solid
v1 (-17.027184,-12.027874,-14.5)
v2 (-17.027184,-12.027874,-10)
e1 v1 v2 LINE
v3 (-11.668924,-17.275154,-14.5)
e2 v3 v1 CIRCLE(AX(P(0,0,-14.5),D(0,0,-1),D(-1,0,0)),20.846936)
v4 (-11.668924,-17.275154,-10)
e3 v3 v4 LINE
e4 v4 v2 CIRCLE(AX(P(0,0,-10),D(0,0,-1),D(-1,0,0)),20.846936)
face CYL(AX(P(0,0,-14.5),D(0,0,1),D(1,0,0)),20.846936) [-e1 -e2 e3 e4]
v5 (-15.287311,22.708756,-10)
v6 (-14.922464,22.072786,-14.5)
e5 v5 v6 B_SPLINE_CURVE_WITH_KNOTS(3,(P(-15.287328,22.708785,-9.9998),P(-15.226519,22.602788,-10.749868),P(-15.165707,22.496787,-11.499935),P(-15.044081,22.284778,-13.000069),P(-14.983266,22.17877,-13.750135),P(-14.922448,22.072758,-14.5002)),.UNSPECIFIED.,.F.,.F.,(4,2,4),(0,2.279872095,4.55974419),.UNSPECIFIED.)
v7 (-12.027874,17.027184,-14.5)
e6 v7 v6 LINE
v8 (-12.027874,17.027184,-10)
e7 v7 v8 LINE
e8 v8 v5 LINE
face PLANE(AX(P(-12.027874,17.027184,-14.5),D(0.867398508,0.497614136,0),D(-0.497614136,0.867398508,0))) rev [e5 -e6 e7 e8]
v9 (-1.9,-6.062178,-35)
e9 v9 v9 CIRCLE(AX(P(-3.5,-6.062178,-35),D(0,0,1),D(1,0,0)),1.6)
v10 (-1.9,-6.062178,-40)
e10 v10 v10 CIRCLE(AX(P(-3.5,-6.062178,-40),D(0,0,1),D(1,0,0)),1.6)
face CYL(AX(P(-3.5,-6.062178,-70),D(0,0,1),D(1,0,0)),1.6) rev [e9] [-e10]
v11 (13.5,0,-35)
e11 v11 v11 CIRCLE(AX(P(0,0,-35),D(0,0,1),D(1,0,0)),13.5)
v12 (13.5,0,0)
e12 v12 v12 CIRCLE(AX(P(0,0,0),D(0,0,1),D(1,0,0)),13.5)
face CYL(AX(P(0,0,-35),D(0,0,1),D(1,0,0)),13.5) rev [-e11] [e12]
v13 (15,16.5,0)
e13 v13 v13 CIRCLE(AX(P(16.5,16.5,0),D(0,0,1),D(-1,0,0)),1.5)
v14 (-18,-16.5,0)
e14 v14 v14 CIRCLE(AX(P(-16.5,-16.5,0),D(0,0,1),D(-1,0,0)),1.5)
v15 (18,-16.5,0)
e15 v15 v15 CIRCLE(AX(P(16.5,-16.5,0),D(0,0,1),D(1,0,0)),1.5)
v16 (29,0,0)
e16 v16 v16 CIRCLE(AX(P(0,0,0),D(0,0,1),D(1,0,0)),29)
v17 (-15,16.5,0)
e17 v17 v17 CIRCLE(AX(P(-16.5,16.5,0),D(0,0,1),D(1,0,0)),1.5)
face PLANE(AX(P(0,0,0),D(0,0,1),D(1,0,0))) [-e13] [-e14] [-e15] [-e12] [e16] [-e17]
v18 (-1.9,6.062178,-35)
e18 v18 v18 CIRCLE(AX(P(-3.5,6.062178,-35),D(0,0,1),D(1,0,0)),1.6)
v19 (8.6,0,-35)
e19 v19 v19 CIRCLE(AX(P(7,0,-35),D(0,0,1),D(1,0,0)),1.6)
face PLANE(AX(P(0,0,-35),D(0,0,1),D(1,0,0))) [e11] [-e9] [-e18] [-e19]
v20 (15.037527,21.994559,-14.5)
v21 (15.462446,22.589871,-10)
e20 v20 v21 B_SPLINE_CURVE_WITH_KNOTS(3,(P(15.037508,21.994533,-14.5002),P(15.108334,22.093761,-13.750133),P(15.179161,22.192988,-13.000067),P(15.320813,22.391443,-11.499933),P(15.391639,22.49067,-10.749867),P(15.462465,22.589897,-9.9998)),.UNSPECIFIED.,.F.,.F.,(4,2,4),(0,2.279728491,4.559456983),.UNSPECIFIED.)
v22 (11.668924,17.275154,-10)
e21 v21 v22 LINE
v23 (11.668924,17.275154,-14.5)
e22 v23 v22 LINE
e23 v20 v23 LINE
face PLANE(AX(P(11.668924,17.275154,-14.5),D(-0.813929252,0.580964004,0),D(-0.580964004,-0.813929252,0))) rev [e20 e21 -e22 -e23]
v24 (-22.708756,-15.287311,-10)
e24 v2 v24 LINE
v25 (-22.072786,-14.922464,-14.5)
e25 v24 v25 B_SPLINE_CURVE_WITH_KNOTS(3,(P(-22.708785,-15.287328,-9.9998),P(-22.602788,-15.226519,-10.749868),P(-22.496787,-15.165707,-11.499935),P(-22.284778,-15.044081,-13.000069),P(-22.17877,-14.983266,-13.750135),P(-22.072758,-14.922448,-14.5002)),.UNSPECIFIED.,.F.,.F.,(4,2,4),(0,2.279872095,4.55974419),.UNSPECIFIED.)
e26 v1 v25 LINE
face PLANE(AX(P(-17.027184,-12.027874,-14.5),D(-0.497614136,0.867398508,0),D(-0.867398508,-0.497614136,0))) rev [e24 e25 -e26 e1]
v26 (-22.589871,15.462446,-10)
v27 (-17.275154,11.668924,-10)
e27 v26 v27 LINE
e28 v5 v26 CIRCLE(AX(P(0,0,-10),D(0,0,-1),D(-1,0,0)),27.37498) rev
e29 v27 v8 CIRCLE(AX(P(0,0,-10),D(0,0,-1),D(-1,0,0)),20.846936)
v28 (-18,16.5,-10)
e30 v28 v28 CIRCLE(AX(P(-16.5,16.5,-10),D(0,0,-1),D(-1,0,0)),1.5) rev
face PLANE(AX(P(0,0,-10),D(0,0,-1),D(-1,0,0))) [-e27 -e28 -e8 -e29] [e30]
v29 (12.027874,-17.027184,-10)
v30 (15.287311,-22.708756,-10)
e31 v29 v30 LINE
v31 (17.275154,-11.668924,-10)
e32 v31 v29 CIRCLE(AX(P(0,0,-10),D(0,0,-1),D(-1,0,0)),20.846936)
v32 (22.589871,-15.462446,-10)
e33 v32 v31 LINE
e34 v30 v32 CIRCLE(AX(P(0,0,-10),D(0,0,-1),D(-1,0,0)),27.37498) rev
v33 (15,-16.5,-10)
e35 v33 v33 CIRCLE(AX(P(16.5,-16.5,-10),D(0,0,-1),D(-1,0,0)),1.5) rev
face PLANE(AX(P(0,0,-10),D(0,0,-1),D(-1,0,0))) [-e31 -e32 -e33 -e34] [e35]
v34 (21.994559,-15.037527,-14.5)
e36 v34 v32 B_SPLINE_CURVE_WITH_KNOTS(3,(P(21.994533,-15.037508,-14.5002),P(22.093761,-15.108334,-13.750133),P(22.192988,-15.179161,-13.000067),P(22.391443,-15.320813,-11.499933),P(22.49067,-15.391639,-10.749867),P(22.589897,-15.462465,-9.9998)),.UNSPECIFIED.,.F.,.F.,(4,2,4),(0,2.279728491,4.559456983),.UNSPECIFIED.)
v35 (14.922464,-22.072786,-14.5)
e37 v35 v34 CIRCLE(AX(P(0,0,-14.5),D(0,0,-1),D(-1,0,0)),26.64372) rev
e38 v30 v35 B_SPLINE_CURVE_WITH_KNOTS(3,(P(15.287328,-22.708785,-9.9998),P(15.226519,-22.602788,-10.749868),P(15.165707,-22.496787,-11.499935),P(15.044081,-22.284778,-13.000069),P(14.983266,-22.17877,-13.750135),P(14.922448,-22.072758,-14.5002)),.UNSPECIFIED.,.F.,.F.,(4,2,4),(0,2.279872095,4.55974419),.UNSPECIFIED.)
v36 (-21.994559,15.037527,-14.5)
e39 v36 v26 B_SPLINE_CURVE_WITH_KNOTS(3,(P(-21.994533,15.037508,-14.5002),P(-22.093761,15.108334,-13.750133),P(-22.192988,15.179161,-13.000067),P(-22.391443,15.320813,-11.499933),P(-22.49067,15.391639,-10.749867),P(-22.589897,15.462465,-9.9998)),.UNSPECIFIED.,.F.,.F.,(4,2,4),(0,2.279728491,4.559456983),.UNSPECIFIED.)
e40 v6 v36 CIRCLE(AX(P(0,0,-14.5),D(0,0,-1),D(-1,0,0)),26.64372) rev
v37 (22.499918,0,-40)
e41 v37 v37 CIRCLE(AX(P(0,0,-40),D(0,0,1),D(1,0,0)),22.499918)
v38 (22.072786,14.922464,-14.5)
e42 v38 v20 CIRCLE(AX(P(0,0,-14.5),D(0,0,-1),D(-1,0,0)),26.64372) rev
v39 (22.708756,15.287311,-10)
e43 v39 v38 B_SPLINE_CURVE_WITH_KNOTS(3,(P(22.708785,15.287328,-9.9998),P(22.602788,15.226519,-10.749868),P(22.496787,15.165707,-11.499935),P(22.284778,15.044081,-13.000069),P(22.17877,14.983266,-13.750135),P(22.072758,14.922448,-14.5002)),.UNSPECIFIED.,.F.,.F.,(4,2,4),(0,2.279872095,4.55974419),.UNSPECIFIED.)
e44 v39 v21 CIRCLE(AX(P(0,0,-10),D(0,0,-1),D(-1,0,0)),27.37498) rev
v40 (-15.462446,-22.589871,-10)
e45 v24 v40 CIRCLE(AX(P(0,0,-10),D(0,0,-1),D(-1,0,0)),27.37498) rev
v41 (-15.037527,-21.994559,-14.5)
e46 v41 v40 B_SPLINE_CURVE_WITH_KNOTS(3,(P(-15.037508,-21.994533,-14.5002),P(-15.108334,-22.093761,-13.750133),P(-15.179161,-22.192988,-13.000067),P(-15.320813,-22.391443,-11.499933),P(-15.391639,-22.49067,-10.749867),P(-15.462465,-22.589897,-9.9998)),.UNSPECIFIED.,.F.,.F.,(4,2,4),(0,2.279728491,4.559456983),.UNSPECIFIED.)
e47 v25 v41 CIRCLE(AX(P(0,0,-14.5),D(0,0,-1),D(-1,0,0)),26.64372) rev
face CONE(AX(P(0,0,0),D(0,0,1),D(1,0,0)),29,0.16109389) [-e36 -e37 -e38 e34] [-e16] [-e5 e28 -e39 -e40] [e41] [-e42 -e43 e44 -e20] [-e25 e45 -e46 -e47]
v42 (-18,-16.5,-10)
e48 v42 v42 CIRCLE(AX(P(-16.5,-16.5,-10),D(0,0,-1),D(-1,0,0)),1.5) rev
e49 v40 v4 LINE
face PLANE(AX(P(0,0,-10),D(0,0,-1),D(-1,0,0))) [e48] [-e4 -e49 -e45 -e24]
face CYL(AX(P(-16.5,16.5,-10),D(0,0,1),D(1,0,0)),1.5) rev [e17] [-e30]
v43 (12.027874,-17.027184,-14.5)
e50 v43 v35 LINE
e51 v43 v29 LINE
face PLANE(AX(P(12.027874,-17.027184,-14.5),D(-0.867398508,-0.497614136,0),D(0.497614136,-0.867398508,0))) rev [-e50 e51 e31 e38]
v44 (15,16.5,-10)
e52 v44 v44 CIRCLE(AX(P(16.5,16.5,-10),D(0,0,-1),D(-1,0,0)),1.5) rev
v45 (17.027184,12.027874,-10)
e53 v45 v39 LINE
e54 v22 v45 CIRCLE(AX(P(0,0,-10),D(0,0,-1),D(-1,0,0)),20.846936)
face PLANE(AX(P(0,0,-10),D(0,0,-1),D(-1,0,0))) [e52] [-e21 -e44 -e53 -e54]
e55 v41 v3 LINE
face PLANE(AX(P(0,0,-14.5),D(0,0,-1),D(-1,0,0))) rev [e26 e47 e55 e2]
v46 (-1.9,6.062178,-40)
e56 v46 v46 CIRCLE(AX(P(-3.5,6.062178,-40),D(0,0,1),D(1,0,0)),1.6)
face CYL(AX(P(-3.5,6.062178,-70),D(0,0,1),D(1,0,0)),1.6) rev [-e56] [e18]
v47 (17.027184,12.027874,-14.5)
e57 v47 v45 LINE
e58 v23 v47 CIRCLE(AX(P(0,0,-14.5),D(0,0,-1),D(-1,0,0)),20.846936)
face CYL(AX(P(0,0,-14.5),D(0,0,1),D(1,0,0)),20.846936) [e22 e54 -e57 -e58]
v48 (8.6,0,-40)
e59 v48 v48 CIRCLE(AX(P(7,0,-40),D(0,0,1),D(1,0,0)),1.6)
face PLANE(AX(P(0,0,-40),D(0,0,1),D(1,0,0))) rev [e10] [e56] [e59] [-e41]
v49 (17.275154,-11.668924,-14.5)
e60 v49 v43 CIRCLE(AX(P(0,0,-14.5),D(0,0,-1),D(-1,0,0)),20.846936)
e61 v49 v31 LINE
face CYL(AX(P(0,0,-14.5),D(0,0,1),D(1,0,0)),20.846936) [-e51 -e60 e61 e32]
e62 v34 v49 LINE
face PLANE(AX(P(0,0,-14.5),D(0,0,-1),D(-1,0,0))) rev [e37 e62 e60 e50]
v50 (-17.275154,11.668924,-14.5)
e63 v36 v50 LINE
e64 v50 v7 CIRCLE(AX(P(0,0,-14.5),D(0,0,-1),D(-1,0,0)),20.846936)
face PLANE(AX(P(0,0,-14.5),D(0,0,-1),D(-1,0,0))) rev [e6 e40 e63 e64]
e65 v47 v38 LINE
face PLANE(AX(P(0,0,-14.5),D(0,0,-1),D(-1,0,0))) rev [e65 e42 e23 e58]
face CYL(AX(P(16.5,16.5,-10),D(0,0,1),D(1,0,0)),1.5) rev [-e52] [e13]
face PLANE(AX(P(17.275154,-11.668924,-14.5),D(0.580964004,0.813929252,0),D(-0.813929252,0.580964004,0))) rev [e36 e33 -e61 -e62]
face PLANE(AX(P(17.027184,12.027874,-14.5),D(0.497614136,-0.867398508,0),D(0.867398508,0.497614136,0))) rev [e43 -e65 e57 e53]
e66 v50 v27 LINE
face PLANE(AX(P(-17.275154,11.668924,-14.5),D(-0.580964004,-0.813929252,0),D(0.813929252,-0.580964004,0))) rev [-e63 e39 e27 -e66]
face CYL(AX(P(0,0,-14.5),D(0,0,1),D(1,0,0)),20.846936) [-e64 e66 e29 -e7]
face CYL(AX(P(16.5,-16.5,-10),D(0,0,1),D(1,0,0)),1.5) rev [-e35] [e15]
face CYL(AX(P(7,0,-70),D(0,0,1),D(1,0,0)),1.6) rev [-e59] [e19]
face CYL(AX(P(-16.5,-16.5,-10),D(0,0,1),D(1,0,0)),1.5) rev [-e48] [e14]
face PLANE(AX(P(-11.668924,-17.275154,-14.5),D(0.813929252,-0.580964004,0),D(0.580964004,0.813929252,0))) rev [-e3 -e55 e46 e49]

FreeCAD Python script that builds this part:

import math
import FreeCAD as App
import Part
import Sketcher
Q = App.Units.Quantity


def faces_at(feature, points):
    """Names of the faces that lie closest to the given points."""
    faces = feature.Shape.Faces
    near = lambda p: min(range(len(faces)), key=lambda i: faces[i].distToShape(Part.Vertex(*p))[0])
    return sorted({f"Face{near(p) + 1}" for p in points})

doc = App.newDocument("Part")
params = doc.addObject("Spreadsheet::Sheet", "Params")
for row, (alias, value) in enumerate([
    ("sketch1_diameter", "58 mm"),
    ("pad1_length", "40 mm"),
    ("draft_angle", "9.23 deg"),
    ("sketch2_diameter", "3 mm"),
    ("pocket1_length", "10 mm"),
    ("sketch3_diameter", "27 mm"),
    ("pocket2_length", "35 mm"),
    ("sketch4_diameter", "3.2 mm"),
    ("pocket3_length", "35 mm"),
    ("pocket4_length", "4.5 mm"),
], start=1):
    params.set(f"A{row}", alias)
    params.set(f"B{row}", "=" + value)
    params.setAlias(f"B{row}", alias)

body = doc.addObject("PartDesign::Body", "Body")

# Sketch on XY plane
sketch1 = body.newObject("Sketcher::SketchObject", "Sketch")
sketch1.AttachmentSupport = (doc.getObject("XY_Plane"), [""])
sketch1.MapMode = "FlatFace"
sketch1.addGeometry(Part.Circle(App.Vector(0, 0, 0), App.Vector(0, 0, 1), 29), False)
sketch1.addConstraint([
    Sketcher.Constraint("Coincident", 0, 3, -1, 1),
    Sketcher.Constraint("Diameter", 0, Q("58 mm")),
])
sketch1.setExpression("Constraints[1]", "Params.sketch1_diameter")
pad1 = body.newObject("PartDesign::Pad", "Pad")
pad1.Profile = sketch1
pad1.setExpression("Length", "Params.pad1_length")
pad1.Reversed = True
doc.recompute()

draft = body.newObject("PartDesign::Draft", "Draft")
draft.Base = (pad1, faces_at(pad1, [(-29, 0, -20)]))
draft.NeutralPlane = (doc.getObject("XY_Plane"), [""])
draft.setExpression("Angle", "Params.draft_angle")
draft.Reversed = True

# Sketch on XY plane
sketch2 = body.newObject("Sketcher::SketchObject", "Sketch001")
sketch2.AttachmentSupport = (doc.getObject("XY_Plane"), [""])
sketch2.MapMode = "FlatFace"
sketch2.addGeometry([
    Part.Circle(App.Vector(-16.5, 16.5, 0), App.Vector(0, 0, 1), 1.5),
    Part.Circle(App.Vector(16.5, 16.5, 0), App.Vector(0, 0, 1), 1.5),
    Part.Circle(App.Vector(16.5, -16.5, 0), App.Vector(0, 0, 1), 1.5),
    Part.Circle(App.Vector(-16.5, -16.5, 0), App.Vector(0, 0, 1), 1.5),
], False)
sketch2.addConstraint([
    Sketcher.Constraint("Equal", 0, 1),
    Sketcher.Constraint("Equal", 1, 2),
    Sketcher.Constraint("Equal", 2, 3),
    Sketcher.Constraint("Symmetric", 0, 3, 2, 3, -1, 1),
    Sketcher.Constraint("Symmetric", 1, 3, 3, 3, -1, 1),
    Sketcher.Constraint("Symmetric", 0, 3, 1, 3, -2),
    Sketcher.Constraint("Diameter", 0, Q("3 mm")),
    Sketcher.Constraint("DistanceX", 0, 3, 1, 3, Q("33 mm")),
    Sketcher.Constraint("DistanceY", 2, 3, 1, 3, Q("33 mm")),
])
sketch2.setExpression("Constraints[6]", "Params.sketch2_diameter")
pocket1 = body.newObject("PartDesign::Pocket", "Pocket")
pocket1.Profile = sketch2
pocket1.setExpression("Length", "Params.pocket1_length")

# Sketch on XY plane
sketch3 = body.newObject("Sketcher::SketchObject", "Sketch002")
sketch3.AttachmentSupport = (doc.getObject("XY_Plane"), [""])
sketch3.MapMode = "FlatFace"
sketch3.addGeometry(Part.Circle(App.Vector(0, 0, 0), App.Vector(0, 0, 1), 14), False)
sketch3.addConstraint([
    Sketcher.Constraint("Coincident", 0, 3, -1, 1),
    Sketcher.Constraint("Diameter", 0, Q("27 mm")),
])
sketch3.setExpression("Constraints[1]", "Params.sketch3_diameter")
pocket2 = body.newObject("PartDesign::Pocket", "Pocket001")
pocket2.Profile = sketch3
pocket2.setExpression("Length", "Params.pocket2_length")

# Sketch on XY plane
sketch4 = body.newObject("Sketcher::SketchObject", "Sketch003")
sketch4.AttachmentSupport = (doc.getObject("XY_Plane"), [""])
sketch4.MapMode = "FlatFace"
sketch4.AttachmentOffset = App.Placement(App.Vector(0, 0, -35), App.Rotation())
sketch4.addGeometry([
    Part.Circle(App.Vector(7, 0, 0), App.Vector(0, 0, 1), 1.6),
    Part.Circle(App.Vector(-3.5, -6.1, 0), App.Vector(0, 0, 1), 1.6),
    Part.Circle(App.Vector(-3.5, 6.1, 0), App.Vector(0, 0, 1), 1.6),
], False)
sketch4.addConstraint([
    Sketcher.Constraint("Equal", 0, 1),
    Sketcher.Constraint("Equal", 1, 2),
    Sketcher.Constraint("Symmetric", 1, 3, 2, 3, -1),
    Sketcher.Constraint("PointOnObject", 0, 3, -1),
    Sketcher.Constraint("Diameter", 0, Q("3.2 mm")),
    Sketcher.Constraint("DistanceX", -1, 1, 0, 3, Q("7 mm")),
    Sketcher.Constraint("DistanceX", 1, 3, -1, 1, Q("3.5 mm")),
    Sketcher.Constraint("DistanceY", 1, 3, -1, 1, Q("6.062178 mm")),
])
sketch4.setExpression("Constraints[4]", "Params.sketch4_diameter")
pocket3 = body.newObject("PartDesign::Pocket", "Pocket002")
pocket3.Profile = sketch4
pocket3.setExpression("Length", "Params.pocket3_length")

# Sketch on XY plane
sketch5 = body.newObject("Sketcher::SketchObject", "Sketch004")
sketch5.AttachmentSupport = (doc.getObject("XY_Plane"), [""])
sketch5.MapMode = "FlatFace"
sketch5.AttachmentOffset = App.Placement(App.Vector(0, 0, -10), App.Rotation())
sketch5.addGeometry([
    Part.LineSegment(App.Vector(17.761391, 25.810687, 0), App.Vector(11.668924, 17.275154, 0)),  # 0
    Part.ArcOfCircle(Part.Circle(App.Vector(0, 0, 0), App.Vector(0, 0, 1), 20.846936), math.radians(35.237095), math.radians(55.961983)),  # 1
    Part.LineSegment(App.Vector(17.027184, 12.027874, 0), App.Vector(26.148288, 17.260522, 0)),  # 2
    Part.ArcOfCircle(Part.Circle(App.Vector(0, 0, 0), App.Vector(0, 0, 1), 31.331431), math.radians(33.428858), math.radians(55.466547)),  # 3
    Part.LineSegment(App.Vector(12.027874, -17.027184, 0), App.Vector(17.260522, -26.148288, 0)),  # 4
    Part.ArcOfCircle(Part.Circle(App.Vector(0, 0, 0), App.Vector(0, 0, 1), 31.331431), math.radians(-56.571142), math.radians(-34.533453)),  # 5
    Part.LineSegment(App.Vector(25.810687, -17.761391, 0), App.Vector(17.275154, -11.668924, 0)),  # 6
    Part.ArcOfCircle(Part.Circle(App.Vector(0, 0, 0), App.Vector(0, 0, 1), 20.846936), math.radians(-54.762905), math.radians(-34.038017)),  # 7
    Part.LineSegment(App.Vector(-17.027184, -12.027874, 0), App.Vector(-26.148288, -17.260522, 0)),  # 8
    Part.ArcOfCircle(Part.Circle(App.Vector(0, 0, 0), App.Vector(0, 0, 1), 31.331431), math.radians(-146.571142), math.radians(-124.533453)),  # 9
    Part.LineSegment(App.Vector(-17.761391, -25.810687, 0), App.Vector(-11.668924, -17.275154, 0)),  # 10
    Part.ArcOfCircle(Part.Circle(App.Vector(0, 0, 0), App.Vector(0, 0, 1), 20.846936), math.radians(-144.762905), math.radians(-124.038017)),  # 11
    Part.LineSegment(App.Vector(-12.027874, 17.027184, 0), App.Vector(-17.260522, 26.148288, 0)),  # 12
    Part.ArcOfCircle(Part.Circle(App.Vector(0, 0, 0), App.Vector(0, 0, 1), 31.331431), math.radians(123.428858), math.radians(145.466547)),  # 13
    Part.LineSegment(App.Vector(-25.810687, 17.761391, 0), App.Vector(-17.275154, 11.668924, 0)),  # 14
    Part.ArcOfCircle(Part.Circle(App.Vector(0, 0, 0), App.Vector(0, 0, 1), 20.846936), math.radians(125.237095), math.radians(145.961983)),  # 15
], False)
sketch5.addConstraint([
    Sketcher.Constraint("Coincident", 0, 2, 1, 2),
    Sketcher.Constraint("Coincident", 1, 1, 2, 1),
    Sketcher.Constraint("Coincident", 2, 2, 3, 1),
    Sketcher.Constraint("Coincident", 3, 2, 0, 1),
    Sketcher.Constraint("Coincident", 4, 2, 5, 1),
    Sketcher.Constraint("Coincident", 5, 2, 6, 1),
    Sketcher.Constraint("Coincident", 6, 2, 7, 2),
    Sketcher.Constraint("Coincident", 7, 1, 4, 1),
    Sketcher.Constraint("Coincident", 8, 2, 9, 1),
    Sketcher.Constraint("Coincident", 9, 2, 10, 1),
    Sketcher.Constraint("Coincident", 10, 2, 11, 2),
    Sketcher.Constraint("Coincident", 11, 1, 8, 1),
    Sketcher.Constraint("Coincident", 12, 2, 13, 1),
    Sketcher.Constraint("Coincident", 13, 2, 14, 1),
    Sketcher.Constraint("Coincident", 14, 2, 15, 2),
    Sketcher.Constraint("Coincident", 15, 1, 12, 1),
    Sketcher.Constraint("Coincident", 1, 3, -1, 1),
    Sketcher.Constraint("Coincident", 3, 3, -1, 1),
    Sketcher.Constraint("Coincident", 5, 3, -1, 1),
    Sketcher.Constraint("Coincident", 7, 3, -1, 1),
    Sketcher.Constraint("Coincident", 9, 3, -1, 1),
    Sketcher.Constraint("Coincident", 11, 3, -1, 1),
    Sketcher.Constraint("Coincident", 13, 3, -1, 1),
    Sketcher.Constraint("Coincident", 15, 3, -1, 1),
    Sketcher.Constraint("Equal", 3, 5),
    Sketcher.Constraint("Equal", 1, 7),
    Sketcher.Constraint("Equal", 5, 9),
    Sketcher.Constraint("Equal", 7, 11),
    Sketcher.Constraint("Equal", 9, 13),
    Sketcher.Constraint("Equal", 11, 15),
    Sketcher.Constraint("Perpendicular", 2, 4),
    Sketcher.Constraint("Perpendicular", 0, 6),
    Sketcher.Constraint("Perpendicular", 4, 8),
    Sketcher.Constraint("Perpendicular", 6, 10),
    Sketcher.Constraint("Perpendicular", 8, 12),
    Sketcher.Constraint("Perpendicular", 10, 14),
    Sketcher.Constraint("Equal", 2, 4),
    Sketcher.Constraint("Equal", 0, 6),
    Sketcher.Constraint("Equal", 4, 8),
    Sketcher.Constraint("Equal", 6, 10),
    Sketcher.Constraint("Equal", 8, 12),
    Sketcher.Constraint("Equal", 10, 14),
    Sketcher.Constraint("Radius", 3, Q("31.331431 mm")),
    Sketcher.Constraint("Radius", 1, Q("20.846936 mm")),
    Sketcher.Constraint("Distance", 2, Q("10.515472 mm")),
    Sketcher.Constraint("DistanceX", -1, 1, 2, 2, Q("26.148288 mm")),
    Sketcher.Constraint("DistanceX", -1, 1, 3, 2, Q("17.761391 mm")),
    Sketcher.Constraint("DistanceX", 0, 2, 1, 1, Q("5.35826 mm")),
])
pocket4 = body.newObject("PartDesign::Pocket", "Pocket003")
pocket4.Profile = sketch5
pocket4.setExpression("Length", "Params.pocket4_length")

doc.recompute()
